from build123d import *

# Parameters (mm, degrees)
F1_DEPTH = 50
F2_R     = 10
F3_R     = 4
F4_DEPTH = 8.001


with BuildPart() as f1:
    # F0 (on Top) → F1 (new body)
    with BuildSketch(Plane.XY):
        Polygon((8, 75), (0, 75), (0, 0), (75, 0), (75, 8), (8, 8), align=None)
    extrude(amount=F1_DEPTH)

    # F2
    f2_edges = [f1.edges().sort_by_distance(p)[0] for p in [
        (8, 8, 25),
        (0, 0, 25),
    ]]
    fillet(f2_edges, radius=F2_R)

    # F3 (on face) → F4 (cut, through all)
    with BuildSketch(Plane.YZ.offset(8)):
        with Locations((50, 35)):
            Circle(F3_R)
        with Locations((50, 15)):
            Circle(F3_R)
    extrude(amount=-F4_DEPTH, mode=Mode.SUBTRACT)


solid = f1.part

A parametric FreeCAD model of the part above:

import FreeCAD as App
import Part
import Sketcher

V = App.Vector


def edges_at(feature, points):
    """Names of the edges that pass closest to the given points."""
    edges = feature.Shape.Edges
    near = lambda p: min(range(len(edges)), key=lambda i: edges[i].distToShape(Part.Vertex(*p))[0])
    return sorted({f"Edge{near(p) + 1}" for p in points})

doc = App.newDocument("Part")
body = doc.addObject("PartDesign::Body", "Body")

sketch1 = body.newObject("Sketcher::SketchObject", "Sketch")
sketch1.AttachmentSupport = (doc.getObject("XY_Plane"), [""])
sketch1.MapMode = "FlatFace"
sketch1.addGeometry([
    Part.LineSegment(V(8, 75, 0), V(0, 75, 0)),
    Part.LineSegment(V(0, 75, 0), V(0, 0, 0)),
    Part.LineSegment(V(0, 0, 0), V(75, 0, 0)),
    Part.LineSegment(V(75, 0, 0), V(75, 8, 0)),
    Part.LineSegment(V(75, 8, 0), V(8, 8, 0)),
    Part.LineSegment(V(8, 8, 0), V(8, 75, 0)),
], False)
sketch1.addConstraint([
    Sketcher.Constraint("Coincident", 0, 2, 1, 1),
    Sketcher.Constraint("Coincident", 1, 2, 2, 1),
    Sketcher.Constraint("Coincident", 2, 2, 3, 1),
    Sketcher.Constraint("Coincident", 3, 2, 4, 1),
    Sketcher.Constraint("Coincident", 4, 2, 5, 1),
    Sketcher.Constraint("Coincident", 5, 2, 0, 1),
    Sketcher.Constraint("Horizontal", 0),
    Sketcher.Constraint("Vertical", 1),
    Sketcher.Constraint("Horizontal", 2),
    Sketcher.Constraint("Vertical", 3),
    Sketcher.Constraint("Horizontal", 4),
    Sketcher.Constraint("Vertical", 5),
    Sketcher.Constraint("Coincident", 1, 2, -1, 1),
    Sketcher.Constraint("Equal", 2, 1),
    Sketcher.Constraint("Equal", 0, 3),
    Sketcher.Constraint("DistanceX", 0, 2, 0, 1, 8.0),
    Sketcher.Constraint("DistanceX", 2, 1, 2, 2, 75.0),
])
pad1 = body.newObject("PartDesign::Pad", "Pad")
pad1.Profile = sketch1
pad1.Length = 50
doc.recompute()

fillet = body.newObject("PartDesign::Fillet", "Fillet")
fillet.Base = (pad1, edges_at(pad1, [(8, 8, 25), (0, 0, 25)]))
fillet.Radius = 10

sketch2 = body.newObject("Sketcher::SketchObject", "Sketch001")
sketch2.AttachmentSupport = (doc.getObject("YZ_Plane"), [""])
sketch2.MapMode = "FlatFace"
sketch2.AttachmentOffset = App.Placement(V(0, 0, 8), App.Rotation())
sketch2.addGeometry([
    Part.Circle(V(50, 35, 0), V(0, 0, 1), 4),
    Part.Circle(V(50, 15, 0), V(0, 0, 1), 4),
], False)
sketch2.addConstraint([
    Sketcher.Constraint("Equal", 0, 1),
    Sketcher.Constraint("Vertical", 0, 3, 1, 3),
    Sketcher.Constraint("Diameter", 0, 8.0),
    Sketcher.Constraint("DistanceX", -1, 1, 0, 3, 50.0),
    Sketcher.Constraint("DistanceY", -1, 1, 0, 3, 35.0),
    Sketcher.Constraint("DistanceY", -1, 1, 1, 3, 15.0),
])
pocket1 = body.newObject("PartDesign::Pocket", "Pocket")
pocket1.Profile = sketch2
pocket1.Type = "ThroughAll"

doc.recompute()
